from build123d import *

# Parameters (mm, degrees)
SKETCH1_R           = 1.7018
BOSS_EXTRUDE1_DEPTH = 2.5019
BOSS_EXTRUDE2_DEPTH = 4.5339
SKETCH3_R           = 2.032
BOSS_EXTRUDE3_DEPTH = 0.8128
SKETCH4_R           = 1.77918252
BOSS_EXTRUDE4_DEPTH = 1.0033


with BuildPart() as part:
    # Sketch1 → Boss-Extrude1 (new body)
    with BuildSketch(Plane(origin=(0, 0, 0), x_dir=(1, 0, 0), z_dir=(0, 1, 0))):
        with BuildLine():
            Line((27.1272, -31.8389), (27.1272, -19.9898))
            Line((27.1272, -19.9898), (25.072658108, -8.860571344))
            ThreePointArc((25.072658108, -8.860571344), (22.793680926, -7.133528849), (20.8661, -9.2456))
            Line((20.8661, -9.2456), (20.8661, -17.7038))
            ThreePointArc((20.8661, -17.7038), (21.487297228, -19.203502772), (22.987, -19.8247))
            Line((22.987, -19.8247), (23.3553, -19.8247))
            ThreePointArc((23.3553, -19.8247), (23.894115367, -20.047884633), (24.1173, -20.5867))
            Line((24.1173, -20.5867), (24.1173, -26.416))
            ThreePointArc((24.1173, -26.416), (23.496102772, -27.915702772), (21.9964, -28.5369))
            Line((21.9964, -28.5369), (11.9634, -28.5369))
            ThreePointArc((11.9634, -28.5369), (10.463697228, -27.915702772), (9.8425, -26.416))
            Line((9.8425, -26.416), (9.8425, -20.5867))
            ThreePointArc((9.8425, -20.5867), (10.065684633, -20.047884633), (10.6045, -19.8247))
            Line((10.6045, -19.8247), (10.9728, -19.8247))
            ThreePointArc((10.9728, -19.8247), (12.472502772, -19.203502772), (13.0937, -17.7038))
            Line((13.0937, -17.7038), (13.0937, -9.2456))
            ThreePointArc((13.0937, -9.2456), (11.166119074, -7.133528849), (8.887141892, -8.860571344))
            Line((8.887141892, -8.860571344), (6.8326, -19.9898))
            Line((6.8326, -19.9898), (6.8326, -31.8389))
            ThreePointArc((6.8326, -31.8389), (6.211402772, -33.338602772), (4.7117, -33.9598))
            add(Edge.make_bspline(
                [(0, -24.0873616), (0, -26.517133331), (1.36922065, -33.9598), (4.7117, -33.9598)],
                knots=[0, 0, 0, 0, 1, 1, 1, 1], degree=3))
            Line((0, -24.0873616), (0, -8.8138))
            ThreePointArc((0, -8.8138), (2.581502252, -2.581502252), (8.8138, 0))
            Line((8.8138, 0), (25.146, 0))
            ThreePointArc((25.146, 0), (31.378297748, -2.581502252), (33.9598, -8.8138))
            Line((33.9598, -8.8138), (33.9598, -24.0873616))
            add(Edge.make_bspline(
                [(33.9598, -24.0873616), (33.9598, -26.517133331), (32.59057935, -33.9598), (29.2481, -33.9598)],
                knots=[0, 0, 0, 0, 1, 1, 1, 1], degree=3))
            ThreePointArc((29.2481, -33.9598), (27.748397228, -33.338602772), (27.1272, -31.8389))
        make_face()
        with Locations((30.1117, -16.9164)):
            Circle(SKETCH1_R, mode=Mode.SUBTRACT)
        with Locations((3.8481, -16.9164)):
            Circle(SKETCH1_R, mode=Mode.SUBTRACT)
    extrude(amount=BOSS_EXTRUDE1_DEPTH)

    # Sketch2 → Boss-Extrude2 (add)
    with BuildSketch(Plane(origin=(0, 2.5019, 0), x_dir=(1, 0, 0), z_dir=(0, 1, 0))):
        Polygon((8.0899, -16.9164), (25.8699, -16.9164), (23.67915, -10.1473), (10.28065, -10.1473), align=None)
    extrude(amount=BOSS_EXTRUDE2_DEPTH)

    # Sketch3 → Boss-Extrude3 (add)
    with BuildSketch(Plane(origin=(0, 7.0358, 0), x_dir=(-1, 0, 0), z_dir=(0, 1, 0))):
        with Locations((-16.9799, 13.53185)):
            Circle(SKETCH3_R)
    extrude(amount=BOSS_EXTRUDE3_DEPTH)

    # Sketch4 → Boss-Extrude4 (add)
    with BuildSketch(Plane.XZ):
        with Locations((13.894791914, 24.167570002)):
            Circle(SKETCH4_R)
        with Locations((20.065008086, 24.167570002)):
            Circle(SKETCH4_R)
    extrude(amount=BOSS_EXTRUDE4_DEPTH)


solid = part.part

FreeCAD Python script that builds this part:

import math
import FreeCAD as App
import Part
import Sketcher
from FreeCAD import Vector
Q = App.Units.Quantity


def add_polygon(sketch, points):
    """Adds a closed chain of lines whose ends are joined by coincident constraints."""
    first, n = sketch.GeometryCount, len(points)
    for a, b in zip(points, points[1:] + points[:1]):
        sketch.addGeometry(Part.LineSegment(App.Vector(*a, 0), App.Vector(*b, 0)), False)
    for i in range(n):
        sketch.addConstraint(Sketcher.Constraint("Coincident", first + i, 2, first + (i + 1) % n, 1))

doc = App.newDocument("Part")
body = doc.addObject("PartDesign::Body", "Body")

sketch1 = body.newObject("Sketcher::SketchObject", "Sketch")
sketch1.AttachmentSupport = (doc.getObject("XZ_Plane"), [""])
sketch1.MapMode = "FlatFace"
sketch1.addGeometry(Part.LineSegment(Vector(27.1272, 19.9898, 0), Vector(27.1272, 31.8389, 0)), False)
sketch1.addGeometry(Part.ArcOfCircle(Part.Circle(Vector(29.2481, 31.8389, 0), Vector(0, 0, 1), 2.1209), math.radians(90), math.radians(180)), False)
sketch1.addGeometry(Part.BSplineCurve([Vector(33.9598, 24.087362, 0), Vector(33.9598, 26.517133, 0), Vector(32.590579, 33.9598, 0), Vector(29.2481, 33.9598, 0)], [4, 4], [0, 1], False, 3, [1, 1, 1, 1], False), False)
sketch1.addGeometry(Part.LineSegment(Vector(33.9598, 24.087362, 0), Vector(33.9598, 8.8138, 0)), False)
sketch1.addGeometry(Part.ArcOfCircle(Part.Circle(Vector(25.146, 8.8138, 0), Vector(0, 0, 1), 8.8138), math.radians(-90), math.radians(0)), False)
sketch1.addGeometry(Part.LineSegment(Vector(25.146, 0, 0), Vector(8.8138, 0, 0)), False)
sketch1.addGeometry(Part.ArcOfCircle(Part.Circle(Vector(8.8138, 8.8138, 0), Vector(0, 0, 1), 8.8138), math.radians(180), math.radians(270)), False)
sketch1.addGeometry(Part.LineSegment(Vector(0, 8.8138, 0), Vector(0, 24.087362, 0)), False)
sketch1.addGeometry(Part.BSplineCurve([Vector(0, 24.087362, 0), Vector(0, 26.517133, 0), Vector(1.369221, 33.9598, 0), Vector(4.7117, 33.9598, 0)], [4, 4], [0, 1], False, 3, [1, 1, 1, 1], False), False)
sketch1.addGeometry(Part.ArcOfCircle(Part.Circle(Vector(4.7117, 31.8389, 0), Vector(0, 0, 1), 2.1209), math.radians(0), math.radians(90)), False)
sketch1.addGeometry(Part.LineSegment(Vector(6.8326, 31.8389, 0), Vector(6.8326, 19.9898, 0)), False)
sketch1.addGeometry(Part.LineSegment(Vector(6.8326, 19.9898, 0), Vector(8.887142, 8.860571, 0)), False)
sketch1.addGeometry(Part.ArcOfCircle(Part.Circle(Vector(10.9728, 9.2456, 0), Vector(0, 0, 1), 2.1209), math.radians(-169.540514), math.radians(0)), False)
sketch1.addGeometry(Part.LineSegment(Vector(13.0937, 9.2456, 0), Vector(13.0937, 17.7038, 0)), False)
sketch1.addGeometry(Part.ArcOfCircle(Part.Circle(Vector(10.9728, 17.7038, 0), Vector(0, 0, 1), 2.1209), math.radians(0), math.radians(90)), False)
sketch1.addGeometry(Part.LineSegment(Vector(10.9728, 19.8247, 0), Vector(10.6045, 19.8247, 0)), False)
sketch1.addGeometry(Part.ArcOfCircle(Part.Circle(Vector(10.6045, 20.5867, 0), Vector(0, 0, 1), 0.762), math.radians(-180), math.radians(-90)), False)
sketch1.addGeometry(Part.LineSegment(Vector(9.8425, 20.5867, 0), Vector(9.8425, 26.416, 0)), False)
sketch1.addGeometry(Part.ArcOfCircle(Part.Circle(Vector(11.9634, 26.416, 0), Vector(0, 0, 1), 2.1209), math.radians(90), math.radians(180)), False)
sketch1.addGeometry(Part.LineSegment(Vector(11.9634, 28.5369, 0), Vector(21.9964, 28.5369, 0)), False)
sketch1.addGeometry(Part.ArcOfCircle(Part.Circle(Vector(21.9964, 26.416, 0), Vector(0, 0, 1), 2.1209), math.radians(0), math.radians(90)), False)
sketch1.addGeometry(Part.LineSegment(Vector(24.1173, 26.416, 0), Vector(24.1173, 20.5867, 0)), False)
sketch1.addGeometry(Part.ArcOfCircle(Part.Circle(Vector(23.3553, 20.5867, 0), Vector(0, 0, 1), 0.762), math.radians(-90), math.radians(0)), False)
sketch1.addGeometry(Part.LineSegment(Vector(23.3553, 19.8247, 0), Vector(22.987, 19.8247, 0)), False)
sketch1.addGeometry(Part.ArcOfCircle(Part.Circle(Vector(22.987, 17.7038, 0), Vector(0, 0, 1), 2.1209), math.radians(90), math.radians(180)), False)
sketch1.addGeometry(Part.LineSegment(Vector(20.8661, 17.7038, 0), Vector(20.8661, 9.2456, 0)), False)
sketch1.addGeometry(Part.ArcOfCircle(Part.Circle(Vector(22.987, 9.2456, 0), Vector(0, 0, 1), 2.1209), math.radians(180), math.radians(349.540514)), False)
sketch1.addGeometry(Part.LineSegment(Vector(25.072658, 8.860571, 0), Vector(27.1272, 19.9898, 0)), False)
sketch1.addGeometry(Part.Circle(Vector(30.1117, 16.9164, 0), Vector(0, 0, 1), 1.7018), False)
sketch1.addGeometry(Part.Circle(Vector(3.8481, 16.9164, 0), Vector(0, 0, 1), 1.7018), False)
sketch1.addConstraint(Sketcher.Constraint("Block", 2))
sketch1.addConstraint(Sketcher.Constraint("Block", 8))
sketch1.addConstraint(Sketcher.Constraint("Tangent", 0, 2, 1, 2))
sketch1.addConstraint(Sketcher.Constraint("Coincident", 1, 1, 2, 2))
sketch1.addConstraint(Sketcher.Constraint("Coincident", 2, 1, 3, 1))
sketch1.addConstraint(Sketcher.Constraint("Tangent", 3, 2, 4, 2))
sketch1.addConstraint(Sketcher.Constraint("Tangent", 4, 1, 5, 1))
sketch1.addConstraint(Sketcher.Constraint("Tangent", 5, 2, 6, 2))
sketch1.addConstraint(Sketcher.Constraint("Tangent", 6, 1, 7, 1))
sketch1.addConstraint(Sketcher.Constraint("Coincident", 7, 2, 8, 1))
sketch1.addConstraint(Sketcher.Constraint("Coincident", 8, 2, 9, 2))
sketch1.addConstraint(Sketcher.Constraint("Tangent", 9, 1, 10, 1))
sketch1.addConstraint(Sketcher.Constraint("Coincident", 10, 2, 11, 1))
sketch1.addConstraint(Sketcher.Constraint("Tangent", 11, 2, 12, 1))
sketch1.addConstraint(Sketcher.Constraint("Tangent", 12, 2, 13, 1))
sketch1.addConstraint(Sketcher.Constraint("Tangent", 13, 2, 14, 1))
sketch1.addConstraint(Sketcher.Constraint("Tangent", 14, 2, 15, 1))
sketch1.addConstraint(Sketcher.Constraint("Tangent", 15, 2, 16, 2))
sketch1.addConstraint(Sketcher.Constraint("Tangent", 16, 1, 17, 1))
sketch1.addConstraint(Sketcher.Constraint("Tangent", 17, 2, 18, 2))
sketch1.addConstraint(Sketcher.Constraint("Tangent", 18, 1, 19, 1))
sketch1.addConstraint(Sketcher.Constraint("Tangent", 19, 2, 20, 2))
sketch1.addConstraint(Sketcher.Constraint("Tangent", 20, 1, 21, 1))
sketch1.addConstraint(Sketcher.Constraint("Tangent", 21, 2, 22, 2))
sketch1.addConstraint(Sketcher.Constraint("Tangent", 22, 1, 23, 1))
sketch1.addConstraint(Sketcher.Constraint("Tangent", 23, 2, 24, 1))
sketch1.addConstraint(Sketcher.Constraint("Tangent", 24, 2, 25, 1))
sketch1.addConstraint(Sketcher.Constraint("Tangent", 25, 2, 26, 1))
sketch1.addConstraint(Sketcher.Constraint("Tangent", 26, 2, 27, 1))
sketch1.addConstraint(Sketcher.Constraint("Coincident", 27, 2, 0, 1))
sketch1.addConstraint(Sketcher.Constraint("Vertical", 0))
sketch1.addConstraint(Sketcher.Constraint("Vertical", 3))
sketch1.addConstraint(Sketcher.Constraint("Horizontal", 5))
sketch1.addConstraint(Sketcher.Constraint("Vertical", 7))
sketch1.addConstraint(Sketcher.Constraint("Vertical", 10))
sketch1.addConstraint(Sketcher.Constraint("Vertical", 13))
sketch1.addConstraint(Sketcher.Constraint("Horizontal", 15))
sketch1.addConstraint(Sketcher.Constraint("Vertical", 17))
sketch1.addConstraint(Sketcher.Constraint("Horizontal", 19))
sketch1.addConstraint(Sketcher.Constraint("Vertical", 21))
sketch1.addConstraint(Sketcher.Constraint("Horizontal", 23))
sketch1.addConstraint(Sketcher.Constraint("Vertical", 25))
sketch1.addConstraint(Sketcher.Constraint("Equal", 4, 6))
sketch1.addConstraint(Sketcher.Constraint("Equal", 1, 9))
sketch1.addConstraint(Sketcher.Constraint("Equal", 9, 12))
sketch1.addConstraint(Sketcher.Constraint("Equal", 12, 14))
sketch1.addConstraint(Sketcher.Constraint("Equal", 14, 18))
sketch1.addConstraint(Sketcher.Constraint("Equal", 18, 20))
sketch1.addConstraint(Sketcher.Constraint("Equal", 16, 22))
sketch1.addConstraint(Sketcher.Constraint("Equal", 20, 24))
sketch1.addConstraint(Sketcher.Constraint("Equal", 24, 26))
sketch1.addConstraint(Sketcher.Constraint("Equal", 28, 29))
sketch1.addConstraint(Sketcher.Constraint("PointOnObject", 4, 1, -1))
sketch1.addConstraint(Sketcher.Constraint("Horizontal", 16, 3, 22, 3))
sketch1.addConstraint(Sketcher.Constraint("Horizontal", 12, 3, 26, 3))
sketch1.addConstraint(Sketcher.Constraint("Horizontal", 28, 3, 29, 3))
sketch1.addConstraint(Sketcher.Constraint("Horizontal", 11, 2, 26, 2))
sketch1.addConstraint(Sketcher.Constraint("Horizontal", 10, 2, 27, 2))
sketch1.addConstraint(Sketcher.Constraint("Equal", 15, 23))
sketch1.addConstraint(Sketcher.Constraint("Radius", 16, Q("0.03 in")))
sketch1.addConstraint(Sketcher.Constraint("Diameter", 28, Q("0.134 in")))
sketch1.addConstraint(Sketcher.Constraint("Radius", 4, Q("0.347 in")))
sketch1.addConstraint(Sketcher.Constraint("Radius", 1, Q("0.0835 in")))
sketch1.addConstraint(Sketcher.Constraint("DistanceX", 19, 1, 19, 2, Q("0.395 in")))
sketch1.addConstraint(Sketcher.Constraint("DistanceY", 13, 1, 13, 2, Q("0.333 in")))
sketch1.addConstraint(Sketcher.Constraint("DistanceY", -1, 1, 18, 3, Q("1.04 in")))
sketch1.addConstraint(Sketcher.Constraint("DistanceY", 6, 3, 14, 3, Q("0.35 in")))
sketch1.addConstraint(Sketcher.Constraint("DistanceY", 14, 3, 10, 2, Q("0.09 in")))
sketch1.addConstraint(Sketcher.Constraint("DistanceX", 15, 2, 15, 1, Q("0.0145 in")))
sketch1.addConstraint(Sketcher.Constraint("DistanceX", -1, 1, 12, 3, Q("0.432 in")))
sketch1.addConstraint(Sketcher.Constraint("DistanceY", -1, 1, 28, 3, Q("0.666 in")))
sketch1.addConstraint(Sketcher.Constraint("DistanceX", -1, 1, 0, 2, Q("1.068 in")))
sketch1.addConstraint(Sketcher.Constraint("DistanceX", 22, 3, 28, 3, Q("0.266 in")))
sketch1.addConstraint(Sketcher.Constraint("DistanceX", 29, 3, 16, 3, Q("0.266 in")))
pad1 = body.newObject("PartDesign::Pad", "Pad")
pad1.Profile = sketch1
pad1.Length = Q("0.0985 in")
pad1.Reversed = True

sketch2 = body.newObject("Sketcher::SketchObject", "Sketch001")
sketch2.AttachmentSupport = (doc.getObject("XZ_Plane"), [""])
sketch2.MapMode = "FlatFace"
sketch2.AttachmentOffset = App.Placement(Vector(0, 0, -0.0985 * 25.4), App.Rotation())
add_polygon(sketch2, [(8, 17), (26, 17), (24, 10), (10, 10)])
sketch2.addConstraint(Sketcher.Constraint("Horizontal", 0))
sketch2.addConstraint(Sketcher.Constraint("Horizontal", 2))
sketch2.addConstraint(Sketcher.Constraint("Equal", 1, 3))
sketch2.addConstraint(Sketcher.Constraint("DistanceX", 0, 1, 0, 2, Q("0.7 in")))
sketch2.addConstraint(Sketcher.Constraint("DistanceX", 2, 2, 2, 1, Q("0.5275 in")))
sketch2.addConstraint(Sketcher.Constraint("DistanceY", -1, 1, 0, 2, Q("0.666 in")))
sketch2.addConstraint(Sketcher.Constraint("DistanceX", -1, 1, 0, 2, Q("1.0185 in")))
sketch2.addConstraint(Sketcher.Constraint("DistanceY", -1, 1, 1, 2, Q("0.3995 in")))
pad2 = body.newObject("PartDesign::Pad", "Pad001")
pad2.Profile = sketch2
pad2.Length = Q("0.1785 in")
pad2.Reversed = True

sketch3 = body.newObject("Sketcher::SketchObject", "Sketch002")
sketch3.AttachmentSupport = (doc.getObject("XZ_Plane"), [""])
sketch3.MapMode = "FlatFace"
sketch3.AttachmentOffset = App.Placement(Vector(0, 0, -0.277 * 25.4), App.Rotation())
sketch3.addGeometry(Part.Circle(Vector(17, 13.5, 0), Vector(0, 0, 1), 2), False)
sketch3.addConstraint(Sketcher.Constraint("Diameter", 0, Q("0.16 in")))
sketch3.addConstraint(Sketcher.Constraint("DistanceX", -1, 1, 0, 3, Q("0.6685 in")))
sketch3.addConstraint(Sketcher.Constraint("DistanceY", -1, 1, 0, 3, 13.53185))
pad3 = body.newObject("PartDesign::Pad", "Pad002")
pad3.Profile = sketch3
pad3.Length = Q("0.032 in")
pad3.Reversed = True

sketch4 = body.newObject("Sketcher::SketchObject", "Sketch003")
sketch4.AttachmentSupport = (doc.getObject("XZ_Plane"), [""])
sketch4.MapMode = "FlatFace"
sketch4.addGeometry(Part.Circle(Vector(13.9, 24.2, 0), Vector(0, 0, 1), 1.8), False)
sketch4.addGeometry(Part.Circle(Vector(20.1, 24.2, 0), Vector(0, 0, 1), 1.8), False)
sketch4.addConstraint(Sketcher.Constraint("Equal", 0, 1))
sketch4.addConstraint(Sketcher.Constraint("Horizontal", 0, 3, 1, 3))
sketch4.addConstraint(Sketcher.Constraint("Diameter", 0, 3.558365))
sketch4.addConstraint(Sketcher.Constraint("DistanceX", -1, 1, 0, 3, 13.894792))
sketch4.addConstraint(Sketcher.Constraint("DistanceY", -1, 1, 0, 3, 24.16757))
sketch4.addConstraint(Sketcher.Constraint("DistanceX", -1, 1, 1, 3, 20.065008))
pad4 = body.newObject("PartDesign::Pad", "Pad003")
pad4.Profile = sketch4
pad4.Length = Q("0.0395 in")

doc.recompute()
